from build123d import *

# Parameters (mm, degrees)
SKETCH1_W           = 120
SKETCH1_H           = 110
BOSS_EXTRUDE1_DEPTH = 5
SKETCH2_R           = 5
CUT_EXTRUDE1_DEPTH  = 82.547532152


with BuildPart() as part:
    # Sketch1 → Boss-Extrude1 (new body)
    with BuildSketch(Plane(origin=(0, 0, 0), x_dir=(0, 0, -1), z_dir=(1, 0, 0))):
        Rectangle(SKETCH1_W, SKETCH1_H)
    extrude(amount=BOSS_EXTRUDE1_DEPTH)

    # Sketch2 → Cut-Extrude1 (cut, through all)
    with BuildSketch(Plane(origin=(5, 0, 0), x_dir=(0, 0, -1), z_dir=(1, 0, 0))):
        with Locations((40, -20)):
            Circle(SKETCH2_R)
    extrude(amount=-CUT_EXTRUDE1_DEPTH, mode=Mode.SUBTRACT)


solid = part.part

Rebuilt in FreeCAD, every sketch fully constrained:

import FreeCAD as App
import Part
import Sketcher
Q = App.Units.Quantity


def add_polygon(sketch, points):
    """Adds a closed chain of lines whose ends are joined by coincident constraints."""
    first, n = sketch.GeometryCount, len(points)
    for a, b in zip(points, points[1:] + points[:1]):
        sketch.addGeometry(Part.LineSegment(App.Vector(*a, 0), App.Vector(*b, 0)), False)
    for i in range(n):
        sketch.addConstraint(Sketcher.Constraint("Coincident", first + i, 2, first + (i + 1) % n, 1))

doc = App.newDocument("Part")
body = doc.addObject("PartDesign::Body", "Body")

# Sketch on YZ plane
sketch1 = body.newObject("Sketcher::SketchObject", "Sketch")
sketch1.AttachmentSupport = (doc.getObject("YZ_Plane"), [""])
sketch1.MapMode = "FlatFace"
add_polygon(sketch1, [(55, 60), (-55, 60), (-55, -60), (55, -60)])  # lines 0-3
sketch1.addConstraint(Sketcher.Constraint("Horizontal", 0))
sketch1.addConstraint(Sketcher.Constraint("Vertical", 1))
sketch1.addConstraint(Sketcher.Constraint("Horizontal", 2))
sketch1.addConstraint(Sketcher.Constraint("Vertical", 3))
sketch1.addConstraint(Sketcher.Constraint("Symmetric", 0, 2, 2, 2, -1, 1))
sketch1.addConstraint(Sketcher.Constraint("DistanceX", 0, 2, 0, 1, Q("110 mm")))
sketch1.addConstraint(Sketcher.Constraint("DistanceY", 1, 2, 1, 1, Q("120 mm")))
pad1 = body.newObject("PartDesign::Pad", "Pad")
pad1.Profile = sketch1
pad1.Length = 5

# Sketch on YZ plane
sketch2 = body.newObject("Sketcher::SketchObject", "Sketch001")
sketch2.AttachmentSupport = (doc.getObject("YZ_Plane"), [""])
sketch2.MapMode = "FlatFace"
sketch2.AttachmentOffset = App.Placement(App.Vector(0, 0, 5), App.Rotation())
sketch2.addGeometry(Part.Circle(App.Vector(-20, -40, 0), App.Vector(0, 0, 1), 5), False)
sketch2.addConstraint(Sketcher.Constraint("Diameter", 0, Q("10 mm")))
sketch2.addConstraint(Sketcher.Constraint("DistanceX", 0, 3, -1, 1, Q("20 mm")))
sketch2.addConstraint(Sketcher.Constraint("DistanceY", 0, 3, -1, 1, Q("40 mm")))
pocket1 = body.newObject("PartDesign::Pocket", "Pocket")
pocket1.Profile = sketch2
pocket1.Type = "ThroughAll"

doc.recompute()
